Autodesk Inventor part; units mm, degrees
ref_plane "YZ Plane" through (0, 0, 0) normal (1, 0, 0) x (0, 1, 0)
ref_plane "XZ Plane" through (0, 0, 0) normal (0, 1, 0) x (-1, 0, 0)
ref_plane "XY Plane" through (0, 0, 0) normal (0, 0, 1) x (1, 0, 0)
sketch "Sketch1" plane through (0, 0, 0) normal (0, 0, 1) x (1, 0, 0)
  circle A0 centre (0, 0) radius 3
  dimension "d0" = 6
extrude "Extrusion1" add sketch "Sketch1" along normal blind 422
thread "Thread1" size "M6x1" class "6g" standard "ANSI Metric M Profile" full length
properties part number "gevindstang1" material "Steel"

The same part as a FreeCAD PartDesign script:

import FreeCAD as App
import Part
import Sketcher
from FreeCAD import Vector
Q = App.Units.Quantity

doc = App.newDocument("Part")
body = doc.addObject("PartDesign::Body", "Body")

# Sketch on XY plane
sketch1 = body.newObject("Sketcher::SketchObject", "Sketch")
sketch1.AttachmentSupport = (doc.getObject("XY_Plane"), [""])
sketch1.MapMode = "FlatFace"
sketch1.addGeometry(Part.Circle(Vector(0, 0, 0), Vector(0, 0, 1), 3), False)
sketch1.addConstraint([
    Sketcher.Constraint("Coincident", 0, 3, -1, 1),
    Sketcher.Constraint("Diameter", 0, Q("6 mm")),
])
pad1 = body.newObject("PartDesign::Pad", "Pad")
pad1.Profile = sketch1
pad1.Length = 422

doc.recompute()
